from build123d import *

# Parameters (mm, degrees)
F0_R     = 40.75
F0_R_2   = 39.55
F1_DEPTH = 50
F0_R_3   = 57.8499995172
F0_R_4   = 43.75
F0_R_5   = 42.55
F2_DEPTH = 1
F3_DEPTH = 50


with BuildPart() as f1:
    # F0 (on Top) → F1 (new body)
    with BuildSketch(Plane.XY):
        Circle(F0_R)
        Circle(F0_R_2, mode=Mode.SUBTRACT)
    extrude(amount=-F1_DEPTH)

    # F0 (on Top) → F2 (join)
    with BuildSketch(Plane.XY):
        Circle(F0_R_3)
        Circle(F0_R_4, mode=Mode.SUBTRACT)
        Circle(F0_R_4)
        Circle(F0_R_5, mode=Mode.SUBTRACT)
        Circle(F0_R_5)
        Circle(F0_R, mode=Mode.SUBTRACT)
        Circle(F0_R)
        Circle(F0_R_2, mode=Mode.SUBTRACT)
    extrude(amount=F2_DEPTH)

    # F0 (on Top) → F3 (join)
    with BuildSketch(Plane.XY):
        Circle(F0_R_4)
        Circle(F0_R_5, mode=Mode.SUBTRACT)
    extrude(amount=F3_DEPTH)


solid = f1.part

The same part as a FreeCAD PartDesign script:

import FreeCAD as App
import Part
import Sketcher
from FreeCAD import Vector

doc = App.newDocument("Part")
body = doc.addObject("PartDesign::Body", "Body")

sketch1 = body.newObject("Sketcher::SketchObject", "Sketch")
sketch1.AttachmentSupport = (doc.getObject("XY_Plane"), [""])
sketch1.MapMode = "FlatFace"
sketch1.addGeometry([
    Part.Circle(Vector(0, 0, 0), Vector(0, 0, 1), 41),
    Part.Circle(Vector(0, 0, 0), Vector(0, 0, 1), 40),
], False)
sketch1.addConstraint([
    Sketcher.Constraint("Coincident", 0, 3, -1, 1),
    Sketcher.Constraint("Coincident", 1, 3, -1, 1),
    Sketcher.Constraint("Diameter", 0, 81.5),
    Sketcher.Constraint("Diameter", 1, 79.1),
])
pad1 = body.newObject("PartDesign::Pad", "Pad")
pad1.Profile = sketch1
pad1.Length = 50
pad1.Reversed = True

sketch2 = body.newObject("Sketcher::SketchObject", "Sketch001")
sketch2.AttachmentSupport = (doc.getObject("XY_Plane"), [""])
sketch2.MapMode = "FlatFace"
sketch2.addGeometry([
    Part.Circle(Vector(0, 0, 0), Vector(0, 0, 1), 58),
    Part.Circle(Vector(0, 0, 0), Vector(0, 0, 1), 40),
], False)
sketch2.addConstraint([
    Sketcher.Constraint("Coincident", 0, 3, -1, 1),
    Sketcher.Constraint("Coincident", 1, 3, -1, 1),
    Sketcher.Constraint("Diameter", 0, 115.699999),
    Sketcher.Constraint("Diameter", 1, 79.1),
])
pad2 = body.newObject("PartDesign::Pad", "Pad001")
pad2.Profile = sketch2
pad2.Length = 1

sketch3 = body.newObject("Sketcher::SketchObject", "Sketch002")
sketch3.AttachmentSupport = (doc.getObject("XY_Plane"), [""])
sketch3.MapMode = "FlatFace"
sketch3.addGeometry([
    Part.Circle(Vector(0, 0, 0), Vector(0, 0, 1), 44),
    Part.Circle(Vector(0, 0, 0), Vector(0, 0, 1), 43),
], False)
sketch3.addConstraint([
    Sketcher.Constraint("Coincident", 0, 3, -1, 1),
    Sketcher.Constraint("Coincident", 1, 3, -1, 1),
    Sketcher.Constraint("Diameter", 0, 87.5),
    Sketcher.Constraint("Diameter", 1, 85.1),
])
pad3 = body.newObject("PartDesign::Pad", "Pad002")
pad3.Profile = sketch3
pad3.Length = 50

doc.recompute()
